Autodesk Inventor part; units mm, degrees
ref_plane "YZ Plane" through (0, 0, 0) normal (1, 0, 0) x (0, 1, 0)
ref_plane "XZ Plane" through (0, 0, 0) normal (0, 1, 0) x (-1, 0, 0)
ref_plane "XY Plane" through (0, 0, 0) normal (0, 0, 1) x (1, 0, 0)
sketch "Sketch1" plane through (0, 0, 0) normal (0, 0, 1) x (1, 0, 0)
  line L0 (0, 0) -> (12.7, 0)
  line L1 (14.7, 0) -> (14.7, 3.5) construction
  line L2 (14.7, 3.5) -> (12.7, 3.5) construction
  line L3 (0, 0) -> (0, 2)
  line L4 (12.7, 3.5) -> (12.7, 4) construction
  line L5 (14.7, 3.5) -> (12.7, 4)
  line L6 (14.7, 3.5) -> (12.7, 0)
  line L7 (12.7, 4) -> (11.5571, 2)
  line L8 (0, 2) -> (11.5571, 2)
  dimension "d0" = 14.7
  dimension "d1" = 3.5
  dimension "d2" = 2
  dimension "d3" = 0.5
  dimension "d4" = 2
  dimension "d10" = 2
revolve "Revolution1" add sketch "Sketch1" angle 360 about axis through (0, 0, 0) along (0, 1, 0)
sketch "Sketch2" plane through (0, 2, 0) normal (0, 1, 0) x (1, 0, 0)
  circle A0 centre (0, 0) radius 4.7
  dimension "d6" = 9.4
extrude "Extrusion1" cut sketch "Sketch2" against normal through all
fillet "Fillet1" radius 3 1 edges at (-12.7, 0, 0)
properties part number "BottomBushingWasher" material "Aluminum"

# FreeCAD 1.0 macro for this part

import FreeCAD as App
import Part
import Sketcher
from FreeCAD import Vector
Q = App.Units.Quantity


def edges_at(feature, points):
    """Names of the edges that pass closest to the given points."""
    edges = feature.Shape.Edges
    near = lambda p: min(range(len(edges)), key=lambda i: edges[i].distToShape(Part.Vertex(*p))[0])
    return sorted({f"Edge{near(p) + 1}" for p in points})

doc = App.newDocument("Part")
body = doc.addObject("PartDesign::Body", "Body")

# Sketch on XY plane
sketch1 = body.newObject("Sketcher::SketchObject", "Sketch")
sketch1.AttachmentSupport = (doc.getObject("XY_Plane"), [""])
sketch1.MapMode = "FlatFace"
sketch1.addGeometry(Part.LineSegment(Vector(0, 2, 0), Vector(0, 0, 0)), False)
sketch1.addGeometry(Part.LineSegment(Vector(0, 0, 0), Vector(12.7, 0, 0)), False)
sketch1.addGeometry(Part.LineSegment(Vector(12.7, 0, 0), Vector(14.7, 3.5, 0)), False)
sketch1.addGeometry(Part.LineSegment(Vector(14.7, 3.5, 0), Vector(12.7, 4, 0)), False)
sketch1.addGeometry(Part.LineSegment(Vector(12.7, 4, 0), Vector(11.5571, 2, 0)), False)
sketch1.addGeometry(Part.LineSegment(Vector(11.5571, 2, 0), Vector(0, 2, 0)), False)
sketch1.addConstraint(Sketcher.Constraint("Coincident", 0, 2, 1, 1))
sketch1.addConstraint(Sketcher.Constraint("Coincident", 1, 2, 2, 1))
sketch1.addConstraint(Sketcher.Constraint("Coincident", 2, 2, 3, 1))
sketch1.addConstraint(Sketcher.Constraint("Coincident", 3, 2, 4, 1))
sketch1.addConstraint(Sketcher.Constraint("Coincident", 4, 2, 5, 1))
sketch1.addConstraint(Sketcher.Constraint("Coincident", 5, 2, 0, 1))
sketch1.addConstraint(Sketcher.Constraint("Vertical", 0))
sketch1.addConstraint(Sketcher.Constraint("Horizontal", 1))
sketch1.addConstraint(Sketcher.Constraint("Horizontal", 5))
sketch1.addConstraint(Sketcher.Constraint("Coincident", 0, 2, -1, 1))
sketch1.addConstraint(Sketcher.Constraint("Parallel", 2, 4))
sketch1.addConstraint(Sketcher.Constraint("Vertical", 1, 2, 3, 2))
sketch1.addConstraint(Sketcher.Constraint("DistanceY", 0, 2, 0, 1, Q("2 mm")))
sketch1.addConstraint(Sketcher.Constraint("DistanceX", 1, 2, 2, 2, Q("2 mm")))
sketch1.addConstraint(Sketcher.Constraint("DistanceY", 4, 2, 3, 2, Q("2 mm")))
sketch1.addConstraint(Sketcher.Constraint("DistanceX", -1, 1, 2, 2, Q("14.7 mm")))
sketch1.addConstraint(Sketcher.Constraint("DistanceY", -1, 1, 2, 2, Q("3.5 mm")))
revolution = body.newObject("PartDesign::Revolution", "Revolution")
revolution.Profile = sketch1
revolution.ReferenceAxis = (sketch1, ["V_Axis"])
revolution.Angle = 360

# Sketch on XZ plane
sketch2 = body.newObject("Sketcher::SketchObject", "Sketch001")
sketch2.AttachmentSupport = (doc.getObject("XZ_Plane"), [""])
sketch2.MapMode = "FlatFace"
sketch2.AttachmentOffset = App.Placement(Vector(0, 0, -2), App.Rotation())
sketch2.addGeometry(Part.Circle(Vector(0, 0, 0), Vector(0, 0, 1), 4.7), False)
sketch2.addConstraint(Sketcher.Constraint("Coincident", 0, 3, -1, 1))
sketch2.addConstraint(Sketcher.Constraint("Diameter", 0, Q("9.4 mm")))
pocket1 = body.newObject("PartDesign::Pocket", "Pocket")
pocket1.Profile = sketch2
pocket1.Type = "ThroughAll"
pocket1.Reversed = True
doc.recompute()

fillet = body.newObject("PartDesign::Fillet", "Fillet")
fillet.Base = (pocket1, edges_at(pocket1, [(-12.7, 0, 0)]))
fillet.Radius = 3

doc.recompute()
